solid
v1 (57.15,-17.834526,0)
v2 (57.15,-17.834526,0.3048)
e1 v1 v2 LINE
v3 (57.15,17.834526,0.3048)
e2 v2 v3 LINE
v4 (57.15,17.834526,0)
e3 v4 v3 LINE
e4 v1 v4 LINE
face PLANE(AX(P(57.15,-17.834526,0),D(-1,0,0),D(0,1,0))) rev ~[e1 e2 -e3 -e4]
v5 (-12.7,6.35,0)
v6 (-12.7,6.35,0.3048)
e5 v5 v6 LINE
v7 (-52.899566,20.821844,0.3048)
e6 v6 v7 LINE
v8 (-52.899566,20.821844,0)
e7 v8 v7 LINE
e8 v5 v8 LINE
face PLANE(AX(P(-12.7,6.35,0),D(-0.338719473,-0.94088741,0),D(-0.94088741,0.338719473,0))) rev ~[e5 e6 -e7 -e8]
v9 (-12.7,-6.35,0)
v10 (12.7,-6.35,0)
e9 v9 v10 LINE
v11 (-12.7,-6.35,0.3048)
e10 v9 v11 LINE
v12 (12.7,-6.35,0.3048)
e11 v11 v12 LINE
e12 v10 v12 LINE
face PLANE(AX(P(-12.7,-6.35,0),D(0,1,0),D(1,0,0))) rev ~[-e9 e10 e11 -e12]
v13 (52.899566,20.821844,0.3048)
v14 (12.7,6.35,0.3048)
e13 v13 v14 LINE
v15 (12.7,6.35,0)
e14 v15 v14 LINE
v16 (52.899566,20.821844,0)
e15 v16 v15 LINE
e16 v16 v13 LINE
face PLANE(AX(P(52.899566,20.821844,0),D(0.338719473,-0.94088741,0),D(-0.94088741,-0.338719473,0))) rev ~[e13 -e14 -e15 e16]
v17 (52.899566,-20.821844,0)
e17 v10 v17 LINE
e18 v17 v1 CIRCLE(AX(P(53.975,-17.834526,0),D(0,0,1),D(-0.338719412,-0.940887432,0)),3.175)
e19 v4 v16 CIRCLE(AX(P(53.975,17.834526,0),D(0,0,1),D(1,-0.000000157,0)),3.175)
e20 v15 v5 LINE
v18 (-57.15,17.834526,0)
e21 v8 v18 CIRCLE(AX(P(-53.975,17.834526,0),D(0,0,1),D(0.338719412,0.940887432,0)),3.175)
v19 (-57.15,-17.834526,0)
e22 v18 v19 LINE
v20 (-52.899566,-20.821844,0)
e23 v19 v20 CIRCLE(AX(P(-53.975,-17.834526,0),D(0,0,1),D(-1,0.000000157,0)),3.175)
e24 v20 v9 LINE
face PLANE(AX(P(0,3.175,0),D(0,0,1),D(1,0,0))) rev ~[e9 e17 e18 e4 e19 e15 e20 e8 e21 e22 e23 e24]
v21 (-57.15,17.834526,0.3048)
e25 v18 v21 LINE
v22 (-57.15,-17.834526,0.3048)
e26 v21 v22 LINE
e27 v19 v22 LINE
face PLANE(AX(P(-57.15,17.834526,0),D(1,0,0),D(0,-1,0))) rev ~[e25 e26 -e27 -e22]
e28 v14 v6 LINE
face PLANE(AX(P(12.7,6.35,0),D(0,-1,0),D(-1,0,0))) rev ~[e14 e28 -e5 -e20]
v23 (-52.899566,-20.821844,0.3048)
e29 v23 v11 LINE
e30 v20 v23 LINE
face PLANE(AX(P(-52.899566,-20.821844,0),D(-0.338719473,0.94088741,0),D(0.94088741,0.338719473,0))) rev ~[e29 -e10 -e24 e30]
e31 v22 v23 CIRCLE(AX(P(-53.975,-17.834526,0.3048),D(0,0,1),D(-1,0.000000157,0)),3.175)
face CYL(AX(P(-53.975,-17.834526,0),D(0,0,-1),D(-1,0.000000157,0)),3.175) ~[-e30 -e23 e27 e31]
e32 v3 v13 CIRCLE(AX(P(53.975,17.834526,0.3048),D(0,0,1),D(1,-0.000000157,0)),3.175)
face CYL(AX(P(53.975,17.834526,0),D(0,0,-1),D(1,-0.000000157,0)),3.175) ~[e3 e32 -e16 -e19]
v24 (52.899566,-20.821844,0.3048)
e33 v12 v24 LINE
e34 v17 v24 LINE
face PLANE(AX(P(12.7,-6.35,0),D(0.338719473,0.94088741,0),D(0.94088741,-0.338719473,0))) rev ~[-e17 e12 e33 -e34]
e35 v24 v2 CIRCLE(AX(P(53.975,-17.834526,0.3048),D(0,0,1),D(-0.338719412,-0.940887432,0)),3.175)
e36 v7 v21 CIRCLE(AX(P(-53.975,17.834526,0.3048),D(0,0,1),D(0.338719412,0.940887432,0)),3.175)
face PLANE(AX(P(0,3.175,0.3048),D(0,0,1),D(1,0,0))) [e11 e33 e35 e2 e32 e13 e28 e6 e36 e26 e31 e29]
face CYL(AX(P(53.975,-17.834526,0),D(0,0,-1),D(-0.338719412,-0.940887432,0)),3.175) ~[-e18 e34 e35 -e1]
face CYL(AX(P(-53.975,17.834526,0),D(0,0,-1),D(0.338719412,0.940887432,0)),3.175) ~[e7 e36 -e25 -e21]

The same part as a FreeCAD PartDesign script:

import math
import FreeCAD as App
import Part
import Sketcher
from FreeCAD import Vector
Q = App.Units.Quantity

doc = App.newDocument("Part")
params = doc.addObject("Spreadsheet::Sheet", "Params")
for row, (alias, value) in enumerate([
    ("sketch1_width", "1 in"),
    ("sketch1_radius", "0.125 in"),
    ("pad1_length", "0.012 in"),
], start=1):
    params.set(f"A{row}", alias)
    params.set(f"B{row}", "=" + value)
    params.setAlias(f"B{row}", alias)

body = doc.addObject("PartDesign::Body", "Body")

# Sketch on XY plane
sketch1 = body.newObject("Sketcher::SketchObject", "Sketch")
sketch1.AttachmentSupport = (doc.getObject("XY_Plane"), [""])
sketch1.MapMode = "FlatFace"
sketch1.addGeometry(Part.LineSegment(Vector(12.7, 6.3, 0), Vector(-12.7, 6.3, 0)), False)
sketch1.addGeometry(Part.LineSegment(Vector(-12.7, 6.3, 0), Vector(-52.9, 20.8, 0)), False)
sketch1.addGeometry(Part.ArcOfCircle(Part.Circle(Vector(-54, 17.8, 0), Vector(0, 0, 1), 3.2), math.radians(70), math.radians(180)), False)
sketch1.addGeometry(Part.LineSegment(Vector(-57.1, 17.8, 0), Vector(-57.1, -17.8, 0)), False)
sketch1.addGeometry(Part.ArcOfCircle(Part.Circle(Vector(-54, -17.8, 0), Vector(0, 0, 1), 3.2), math.radians(180), math.radians(290)), False)
sketch1.addGeometry(Part.LineSegment(Vector(-52.9, -20.8, 0), Vector(-12.7, -6.3, 0)), False)
sketch1.addGeometry(Part.LineSegment(Vector(-12.7, -6.3, 0), Vector(12.7, -6.3, 0)), False)
sketch1.addGeometry(Part.LineSegment(Vector(12.7, -6.3, 0), Vector(52.9, -20.8, 0)), False)
sketch1.addGeometry(Part.ArcOfCircle(Part.Circle(Vector(54, -17.8, 0), Vector(0, 0, 1), 3.2), math.radians(-110), math.radians(0)), False)
sketch1.addGeometry(Part.LineSegment(Vector(57.1, -17.8, 0), Vector(57.1, 17.8, 0)), False)
sketch1.addGeometry(Part.ArcOfCircle(Part.Circle(Vector(54, 17.8, 0), Vector(0, 0, 1), 3.2), math.radians(0), math.radians(110)), False)
sketch1.addGeometry(Part.LineSegment(Vector(52.9, 20.8, 0), Vector(12.7, 6.3, 0)), False)
sketch1.addConstraint(Sketcher.Constraint("Coincident", 0, 2, 1, 1))
sketch1.addConstraint(Sketcher.Constraint("Tangent", 1, 2, 2, 1))
sketch1.addConstraint(Sketcher.Constraint("Tangent", 2, 2, 3, 1))
sketch1.addConstraint(Sketcher.Constraint("Tangent", 3, 2, 4, 1))
sketch1.addConstraint(Sketcher.Constraint("Tangent", 4, 2, 5, 1))
sketch1.addConstraint(Sketcher.Constraint("Coincident", 5, 2, 6, 1))
sketch1.addConstraint(Sketcher.Constraint("Coincident", 6, 2, 7, 1))
sketch1.addConstraint(Sketcher.Constraint("Tangent", 7, 2, 8, 1))
sketch1.addConstraint(Sketcher.Constraint("Tangent", 8, 2, 9, 1))
sketch1.addConstraint(Sketcher.Constraint("Tangent", 9, 2, 10, 1))
sketch1.addConstraint(Sketcher.Constraint("Tangent", 10, 2, 11, 1))
sketch1.addConstraint(Sketcher.Constraint("Coincident", 11, 2, 0, 1))
sketch1.addConstraint(Sketcher.Constraint("Horizontal", 0))
sketch1.addConstraint(Sketcher.Constraint("Vertical", 3))
sketch1.addConstraint(Sketcher.Constraint("Horizontal", 6))
sketch1.addConstraint(Sketcher.Constraint("Vertical", 9))
sketch1.addConstraint(Sketcher.Constraint("Equal", 2, 4))
sketch1.addConstraint(Sketcher.Constraint("Equal", 4, 8))
sketch1.addConstraint(Sketcher.Constraint("Equal", 8, 10))
sketch1.addConstraint(Sketcher.Constraint("Symmetric", 2, 3, 8, 3, -1, 1))
sketch1.addConstraint(Sketcher.Constraint("Symmetric", 0, 2, 6, 2, -1, 1))
sketch1.addConstraint(Sketcher.Constraint("Symmetric", 4, 2, 10, 2, -1, 1))
sketch1.addConstraint(Sketcher.Constraint("Symmetric", 4, 2, 7, 2, -2))
sketch1.addConstraint(Sketcher.Constraint("DistanceX", 0, 2, 0, 1, Q("1 in")))
sketch1.addConstraint(Sketcher.Constraint("Radius", 2, Q("0.125 in")))
sketch1.addConstraint(Sketcher.Constraint("DistanceY", 5, 2, 0, 2, Q("0.5 in")))
sketch1.addConstraint(Sketcher.Constraint("DistanceX", 2, 2, -1, 1, Q("2.25 in")))
sketch1.addConstraint(Sketcher.Constraint("Distance", 1, Q("42.725161 mm")))
sketch1.setExpression("Constraints[23]", "Params.sketch1_width")
sketch1.setExpression("Constraints[24]", "Params.sketch1_radius")
pad1 = body.newObject("PartDesign::Pad", "Pad")
pad1.Profile = sketch1
pad1.setExpression("Length", "Params.pad1_length")

doc.recompute()
